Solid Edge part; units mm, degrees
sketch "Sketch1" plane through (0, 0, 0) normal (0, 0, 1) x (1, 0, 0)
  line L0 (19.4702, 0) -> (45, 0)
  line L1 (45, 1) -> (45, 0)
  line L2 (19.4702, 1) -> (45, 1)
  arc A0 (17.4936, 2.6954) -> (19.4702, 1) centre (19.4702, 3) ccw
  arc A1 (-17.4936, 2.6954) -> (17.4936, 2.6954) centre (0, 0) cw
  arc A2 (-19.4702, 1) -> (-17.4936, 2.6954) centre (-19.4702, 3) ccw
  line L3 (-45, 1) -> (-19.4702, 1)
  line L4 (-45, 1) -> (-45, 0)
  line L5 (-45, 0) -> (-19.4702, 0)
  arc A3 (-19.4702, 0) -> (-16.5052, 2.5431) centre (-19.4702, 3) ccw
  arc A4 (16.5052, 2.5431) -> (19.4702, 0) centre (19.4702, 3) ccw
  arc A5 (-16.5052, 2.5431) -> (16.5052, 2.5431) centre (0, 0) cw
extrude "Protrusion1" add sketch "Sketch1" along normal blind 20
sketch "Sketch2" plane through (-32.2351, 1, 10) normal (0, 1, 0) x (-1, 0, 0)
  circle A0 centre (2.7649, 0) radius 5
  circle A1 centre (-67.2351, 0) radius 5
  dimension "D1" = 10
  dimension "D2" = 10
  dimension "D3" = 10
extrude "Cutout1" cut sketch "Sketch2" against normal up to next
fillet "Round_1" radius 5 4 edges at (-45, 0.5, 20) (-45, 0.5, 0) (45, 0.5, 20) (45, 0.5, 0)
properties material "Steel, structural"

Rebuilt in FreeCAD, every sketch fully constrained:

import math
import FreeCAD as App
import Part
import Sketcher
from FreeCAD import Vector
Q = App.Units.Quantity


def edges_at(feature, points):
    """Names of the edges that pass closest to the given points."""
    edges = feature.Shape.Edges
    near = lambda p: min(range(len(edges)), key=lambda i: edges[i].distToShape(Part.Vertex(*p))[0])
    return sorted({f"Edge{near(p) + 1}" for p in points})

doc = App.newDocument("Part")
body = doc.addObject("PartDesign::Body", "Body")

# Sketch on XY plane
sketch1 = doc.addObject("Sketcher::SketchObject", "Sketch")
body.addObject(sketch1)
sketch1.AttachmentSupport = (doc.XY_Plane, [""])
sketch1.MapMode = "FlatFace"
sketch1.addGeometry(Part.ArcOfCircle(Part.Circle(Vector(19.5, 3, 0), Vector(0, 0, 1), 3), math.radians(-171), math.radians(-90)), False)
sketch1.addGeometry(Part.LineSegment(Vector(19.5, 0, 0), Vector(45, 0, 0)), False)
sketch1.addGeometry(Part.LineSegment(Vector(45, 0, 0), Vector(45, 1, 0)), False)
sketch1.addGeometry(Part.LineSegment(Vector(45, 1, 0), Vector(19.5, 1, 0)), False)
sketch1.addGeometry(Part.ArcOfCircle(Part.Circle(Vector(19.5, 3, 0), Vector(0, 0, 1), 2), math.radians(-171), math.radians(-90)), False)
sketch1.addGeometry(Part.ArcOfCircle(Part.Circle(Vector(0, 0, 0), Vector(0, 0, 1), 17.7), math.radians(9), math.radians(171)), False)
sketch1.addGeometry(Part.ArcOfCircle(Part.Circle(Vector(-19.5, 3, 0), Vector(0, 0, 1), 2), math.radians(-90), math.radians(-9)), False)
sketch1.addGeometry(Part.LineSegment(Vector(-19.5, 1, 0), Vector(-45, 1, 0)), False)
sketch1.addGeometry(Part.LineSegment(Vector(-45, 1, 0), Vector(-45, 0, 0)), False)
sketch1.addGeometry(Part.LineSegment(Vector(-45, 0, 0), Vector(-19.5, 0, 0)), False)
sketch1.addGeometry(Part.ArcOfCircle(Part.Circle(Vector(-19.5, 3, 0), Vector(0, 0, 1), 3), math.radians(-90), math.radians(-9)), False)
sketch1.addGeometry(Part.ArcOfCircle(Part.Circle(Vector(0, 0, 0), Vector(0, 0, 1), 16.7), math.radians(9), math.radians(171)), False)
sketch1.addConstraint(Sketcher.Constraint("Tangent", 0, 2, 1, 1))
sketch1.addConstraint(Sketcher.Constraint("Coincident", 1, 2, 2, 1))
sketch1.addConstraint(Sketcher.Constraint("Coincident", 2, 2, 3, 1))
sketch1.addConstraint(Sketcher.Constraint("Tangent", 3, 2, 4, 2))
sketch1.addConstraint(Sketcher.Constraint("Tangent", 4, 1, 5, 1))
sketch1.addConstraint(Sketcher.Constraint("Tangent", 5, 2, 6, 2))
sketch1.addConstraint(Sketcher.Constraint("Tangent", 6, 1, 7, 1))
sketch1.addConstraint(Sketcher.Constraint("Coincident", 7, 2, 8, 1))
sketch1.addConstraint(Sketcher.Constraint("Coincident", 8, 2, 9, 1))
sketch1.addConstraint(Sketcher.Constraint("Tangent", 9, 2, 10, 1))
sketch1.addConstraint(Sketcher.Constraint("Tangent", 10, 2, 11, 2))
sketch1.addConstraint(Sketcher.Constraint("Tangent", 11, 1, 0, 1))
sketch1.addConstraint(Sketcher.Constraint("Horizontal", 1))
sketch1.addConstraint(Sketcher.Constraint("Vertical", 2))
sketch1.addConstraint(Sketcher.Constraint("Horizontal", 3))
sketch1.addConstraint(Sketcher.Constraint("Horizontal", 7))
sketch1.addConstraint(Sketcher.Constraint("Vertical", 8))
sketch1.addConstraint(Sketcher.Constraint("Horizontal", 9))
sketch1.addConstraint(Sketcher.Constraint("Coincident", 5, 3, -1, 1))
sketch1.addConstraint(Sketcher.Constraint("Coincident", 11, 3, -1, 1))
sketch1.addConstraint(Sketcher.Constraint("Coincident", 4, 3, 0, 3))
sketch1.addConstraint(Sketcher.Constraint("Coincident", 10, 3, 6, 3))
sketch1.addConstraint(Sketcher.Constraint("Equal", 4, 6))
sketch1.addConstraint(Sketcher.Constraint("Symmetric", 1, 2, 8, 2, -1, 1))
sketch1.addConstraint(Sketcher.Constraint("PointOnObject", 0, 2, -1))
sketch1.addConstraint(Sketcher.Constraint("Radius", 0, Q("3 mm")))
sketch1.addConstraint(Sketcher.Constraint("Radius", 4, Q("2 mm")))
sketch1.addConstraint(Sketcher.Constraint("Radius", 5, Q("17.7 mm")))
sketch1.addConstraint(Sketcher.Constraint("DistanceX", -1, 1, 1, 2, Q("45 mm")))
pad1 = doc.addObject("PartDesign::Pad", "Pad")
body.addObject(pad1)
pad1.Profile = sketch1
pad1.Length = 20

# Sketch on XZ plane
sketch2 = doc.addObject("Sketcher::SketchObject", "Sketch001")
body.addObject(sketch2)
sketch2.AttachmentSupport = (doc.XZ_Plane, [""])
sketch2.MapMode = "FlatFace"
sketch2.AttachmentOffset = App.Placement(Vector(0, 0, -1), App.Rotation())
sketch2.addGeometry(Part.Circle(Vector(-35, 10, 0), Vector(0, 0, 1), 5), False)
sketch2.addGeometry(Part.Circle(Vector(35, 10, 0), Vector(0, 0, 1), 5), False)
sketch2.addConstraint(Sketcher.Constraint("Equal", 0, 1))
sketch2.addConstraint(Sketcher.Constraint("Symmetric", 0, 3, 1, 3, -2))
sketch2.addConstraint(Sketcher.Constraint("Diameter", 0, Q("10 mm")))
sketch2.addConstraint(Sketcher.Constraint("DistanceX", 0, 3, -1, 1, Q("35 mm")))
sketch2.addConstraint(Sketcher.Constraint("DistanceY", -1, 1, 0, 3, Q("10 mm")))
pocket1 = doc.addObject("PartDesign::Pocket", "Pocket")
body.addObject(pocket1)
pocket1.Profile = sketch2
pocket1.Length = 1
pocket1.Reversed = True
doc.recompute()

fillet = doc.addObject("PartDesign::Fillet", "Fillet")
body.addObject(fillet)
fillet.Base = (pocket1, edges_at(pocket1, [
    (-45, 0.5, 20),
    (-45, 0.5, 0),
    (45, 0.5, 20),
    (45, 0.5, 0),
]))
fillet.Radius = 5

doc.recompute()
